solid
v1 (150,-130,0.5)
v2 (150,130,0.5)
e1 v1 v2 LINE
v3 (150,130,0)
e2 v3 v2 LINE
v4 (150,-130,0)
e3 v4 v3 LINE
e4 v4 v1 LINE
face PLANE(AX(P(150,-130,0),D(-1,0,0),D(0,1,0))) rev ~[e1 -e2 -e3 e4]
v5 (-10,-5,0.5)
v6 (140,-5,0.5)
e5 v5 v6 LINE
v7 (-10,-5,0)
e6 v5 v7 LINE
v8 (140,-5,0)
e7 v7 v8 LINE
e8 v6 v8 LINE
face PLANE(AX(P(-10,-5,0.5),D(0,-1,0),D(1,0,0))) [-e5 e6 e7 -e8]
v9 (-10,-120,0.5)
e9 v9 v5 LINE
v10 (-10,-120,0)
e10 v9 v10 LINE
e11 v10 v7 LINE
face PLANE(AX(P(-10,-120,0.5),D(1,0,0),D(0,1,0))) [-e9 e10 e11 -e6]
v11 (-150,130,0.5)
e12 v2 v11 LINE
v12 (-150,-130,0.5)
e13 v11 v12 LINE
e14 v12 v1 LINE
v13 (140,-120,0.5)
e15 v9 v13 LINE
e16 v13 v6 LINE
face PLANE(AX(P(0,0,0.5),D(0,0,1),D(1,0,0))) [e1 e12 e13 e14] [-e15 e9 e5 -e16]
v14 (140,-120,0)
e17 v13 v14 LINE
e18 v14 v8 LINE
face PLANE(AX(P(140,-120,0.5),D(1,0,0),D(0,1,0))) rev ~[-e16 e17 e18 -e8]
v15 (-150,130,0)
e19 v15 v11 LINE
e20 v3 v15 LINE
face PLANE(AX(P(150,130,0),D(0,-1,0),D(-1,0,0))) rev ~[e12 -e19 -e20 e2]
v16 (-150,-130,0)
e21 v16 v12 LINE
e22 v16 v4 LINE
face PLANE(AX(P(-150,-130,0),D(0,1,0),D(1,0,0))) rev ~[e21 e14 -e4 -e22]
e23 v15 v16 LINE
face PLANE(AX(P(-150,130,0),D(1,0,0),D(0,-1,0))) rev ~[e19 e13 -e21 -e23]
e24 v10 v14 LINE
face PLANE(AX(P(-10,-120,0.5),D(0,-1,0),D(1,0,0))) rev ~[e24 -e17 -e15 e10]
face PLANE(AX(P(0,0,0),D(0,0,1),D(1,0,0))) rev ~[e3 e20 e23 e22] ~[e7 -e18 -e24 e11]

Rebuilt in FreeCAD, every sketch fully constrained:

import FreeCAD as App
import Part
import Sketcher

V = App.Vector

doc = App.newDocument("Part")
body = doc.addObject("PartDesign::Body", "Body")

sketch1 = doc.addObject("Sketcher::SketchObject", "Sketch")
body.addObject(sketch1)
sketch1.AttachmentSupport = (doc.XY_Plane, [""])
sketch1.MapMode = "FlatFace"
sketch1.addGeometry([
    Part.LineSegment(V(-150, 130, 0), V(-150, -130, 0)),
    Part.LineSegment(V(-150, -130, 0), V(150, -130, 0)),
    Part.LineSegment(V(150, -130, 0), V(150, 130, 0)),
    Part.LineSegment(V(150, 130, 0), V(-150, 130, 0)),
], False)
sketch1.addConstraint([
    Sketcher.Constraint("Coincident", 0, 2, 1, 1),
    Sketcher.Constraint("Coincident", 1, 2, 2, 1),
    Sketcher.Constraint("Coincident", 2, 2, 3, 1),
    Sketcher.Constraint("Coincident", 3, 2, 0, 1),
    Sketcher.Constraint("Vertical", 0),
    Sketcher.Constraint("Horizontal", 1),
    Sketcher.Constraint("Vertical", 2),
    Sketcher.Constraint("Horizontal", 3),
    Sketcher.Constraint("Symmetric", 0, 2, 2, 2, -1, 1),
    Sketcher.Constraint("DistanceX", 1, 1, 1, 2, 300.0),
    Sketcher.Constraint("DistanceY", 0, 2, 0, 1, 260.0),
])
pad1 = doc.addObject("PartDesign::Pad", "Pad")
body.addObject(pad1)
pad1.Profile = sketch1
pad1.Length = 0.5

sketch2 = doc.addObject("Sketcher::SketchObject", "Sketch001")
body.addObject(sketch2)
sketch2.AttachmentSupport = (doc.XY_Plane, [""])
sketch2.MapMode = "FlatFace"
sketch2.AttachmentOffset = App.Placement(V(0, 0, 0.5), App.Rotation())
sketch2.addGeometry([
    Part.LineSegment(V(-10, -5, 0), V(-10, -120, 0)),
    Part.LineSegment(V(-10, -120, 0), V(140, -120, 0)),
    Part.LineSegment(V(140, -120, 0), V(140, -5, 0)),
    Part.LineSegment(V(140, -5, 0), V(-10, -5, 0)),
], False)
sketch2.addConstraint([
    Sketcher.Constraint("Coincident", 0, 2, 1, 1),
    Sketcher.Constraint("Coincident", 1, 2, 2, 1),
    Sketcher.Constraint("Coincident", 2, 2, 3, 1),
    Sketcher.Constraint("Coincident", 3, 2, 0, 1),
    Sketcher.Constraint("Vertical", 0),
    Sketcher.Constraint("Horizontal", 1),
    Sketcher.Constraint("Vertical", 2),
    Sketcher.Constraint("Horizontal", 3),
    Sketcher.Constraint("DistanceX", 1, 1, 1, 2, 150.0),
    Sketcher.Constraint("DistanceY", 0, 2, 0, 1, 115.0),
    Sketcher.Constraint("DistanceX", 0, 2, -1, 1, 10.0),
    Sketcher.Constraint("DistanceY", 0, 2, -1, 1, 120.0),
])
pocket1 = doc.addObject("PartDesign::Pocket", "Pocket")
body.addObject(pocket1)
pocket1.Profile = sketch2
pocket1.Length = 0.5

doc.recompute()
